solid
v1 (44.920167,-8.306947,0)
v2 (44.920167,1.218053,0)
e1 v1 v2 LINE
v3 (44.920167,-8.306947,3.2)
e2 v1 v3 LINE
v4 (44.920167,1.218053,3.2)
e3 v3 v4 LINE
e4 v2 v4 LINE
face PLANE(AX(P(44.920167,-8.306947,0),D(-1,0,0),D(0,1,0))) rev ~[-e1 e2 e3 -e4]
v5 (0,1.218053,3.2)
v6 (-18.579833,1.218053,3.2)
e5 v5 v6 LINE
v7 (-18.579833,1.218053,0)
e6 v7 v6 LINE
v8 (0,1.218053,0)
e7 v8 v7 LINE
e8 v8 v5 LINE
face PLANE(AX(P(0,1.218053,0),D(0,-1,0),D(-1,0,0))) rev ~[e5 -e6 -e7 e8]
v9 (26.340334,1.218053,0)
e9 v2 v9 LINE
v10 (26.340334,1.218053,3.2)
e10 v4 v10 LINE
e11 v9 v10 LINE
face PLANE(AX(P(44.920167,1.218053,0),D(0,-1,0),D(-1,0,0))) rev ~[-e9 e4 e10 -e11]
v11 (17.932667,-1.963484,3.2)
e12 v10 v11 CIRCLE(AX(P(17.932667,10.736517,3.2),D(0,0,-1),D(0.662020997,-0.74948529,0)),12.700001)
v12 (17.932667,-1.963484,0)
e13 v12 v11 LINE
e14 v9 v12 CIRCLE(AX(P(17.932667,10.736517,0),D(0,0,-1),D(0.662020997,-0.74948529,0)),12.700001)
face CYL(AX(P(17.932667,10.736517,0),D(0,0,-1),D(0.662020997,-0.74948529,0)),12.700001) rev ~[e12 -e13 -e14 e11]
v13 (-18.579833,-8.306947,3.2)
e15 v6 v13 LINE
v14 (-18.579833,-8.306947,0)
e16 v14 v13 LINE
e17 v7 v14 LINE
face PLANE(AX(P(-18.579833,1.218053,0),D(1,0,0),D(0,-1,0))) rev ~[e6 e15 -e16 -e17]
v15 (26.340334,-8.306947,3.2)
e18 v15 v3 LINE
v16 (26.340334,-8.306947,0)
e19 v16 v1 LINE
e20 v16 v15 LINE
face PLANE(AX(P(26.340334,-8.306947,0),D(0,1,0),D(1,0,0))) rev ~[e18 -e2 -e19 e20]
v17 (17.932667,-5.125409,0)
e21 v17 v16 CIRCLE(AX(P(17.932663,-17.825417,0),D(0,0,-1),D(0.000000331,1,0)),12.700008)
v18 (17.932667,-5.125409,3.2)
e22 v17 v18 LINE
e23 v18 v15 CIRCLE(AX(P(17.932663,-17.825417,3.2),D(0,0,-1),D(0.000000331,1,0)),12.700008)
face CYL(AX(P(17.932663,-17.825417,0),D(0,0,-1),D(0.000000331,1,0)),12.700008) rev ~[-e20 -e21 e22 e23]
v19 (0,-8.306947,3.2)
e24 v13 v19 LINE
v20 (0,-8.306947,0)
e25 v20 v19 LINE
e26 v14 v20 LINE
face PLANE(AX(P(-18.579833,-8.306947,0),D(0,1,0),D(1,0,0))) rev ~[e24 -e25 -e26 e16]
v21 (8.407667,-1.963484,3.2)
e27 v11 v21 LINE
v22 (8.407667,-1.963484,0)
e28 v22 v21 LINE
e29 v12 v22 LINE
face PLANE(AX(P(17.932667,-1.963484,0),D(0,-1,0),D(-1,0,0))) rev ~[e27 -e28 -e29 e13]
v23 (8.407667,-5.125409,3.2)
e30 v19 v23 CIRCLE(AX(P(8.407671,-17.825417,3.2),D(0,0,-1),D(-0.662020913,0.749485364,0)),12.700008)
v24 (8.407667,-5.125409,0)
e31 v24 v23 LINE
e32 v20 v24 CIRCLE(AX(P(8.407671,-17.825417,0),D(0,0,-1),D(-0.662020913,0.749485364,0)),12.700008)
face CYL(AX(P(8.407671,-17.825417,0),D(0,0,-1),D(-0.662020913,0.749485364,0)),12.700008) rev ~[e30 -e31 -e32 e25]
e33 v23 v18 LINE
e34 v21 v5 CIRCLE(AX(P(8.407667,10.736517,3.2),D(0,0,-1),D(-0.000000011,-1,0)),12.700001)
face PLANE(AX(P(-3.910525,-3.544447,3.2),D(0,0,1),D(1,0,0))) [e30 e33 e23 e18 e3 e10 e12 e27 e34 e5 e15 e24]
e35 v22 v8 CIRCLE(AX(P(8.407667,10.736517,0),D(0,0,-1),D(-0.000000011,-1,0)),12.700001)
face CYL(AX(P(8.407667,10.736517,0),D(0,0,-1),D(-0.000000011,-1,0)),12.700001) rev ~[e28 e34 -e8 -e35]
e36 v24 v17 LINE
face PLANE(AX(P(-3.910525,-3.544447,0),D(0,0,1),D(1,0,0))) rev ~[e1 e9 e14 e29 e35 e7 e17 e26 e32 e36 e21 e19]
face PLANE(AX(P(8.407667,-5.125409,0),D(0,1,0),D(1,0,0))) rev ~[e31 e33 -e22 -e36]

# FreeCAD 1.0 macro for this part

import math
import FreeCAD as App
import Part
import Sketcher

V = App.Vector
Q = App.Units.Quantity

doc = App.newDocument("Part")
body = doc.addObject("PartDesign::Body", "Body")

sketch1 = body.newObject("Sketcher::SketchObject", "Sketch")
sketch1.AttachmentSupport = (doc.getObject("XY_Plane"), [""])
sketch1.MapMode = "FlatFace"
sketch1.addGeometry(Part.LineSegment(V(0, 1, 0), V(-19, 1, 0)), False)
sketch1.addGeometry(Part.LineSegment(V(-19, 1, 0), V(-19, -8, 0)), False)
sketch1.addGeometry(Part.LineSegment(V(-19, -8, 0), V(0, -8, 0)), False)
sketch1.addGeometry(Part.ArcOfCircle(Part.Circle(V(8, -18, 0), V(0, 0, 1), 13), math.radians(90), math.radians(131)), False)
sketch1.addGeometry(Part.LineSegment(V(8, -5, 0), V(18, -5, 0)), False)
sketch1.addGeometry(Part.ArcOfCircle(Part.Circle(V(18, -18, 0), V(0, 0, 1), 13), math.radians(49), math.radians(90)), False)
sketch1.addGeometry(Part.LineSegment(V(26, -8, 0), V(45, -8, 0)), False)
sketch1.addGeometry(Part.LineSegment(V(45, -8, 0), V(45, 1, 0)), False)
sketch1.addGeometry(Part.LineSegment(V(45, 1, 0), V(26, 1, 0)), False)
sketch1.addGeometry(Part.ArcOfCircle(Part.Circle(V(18, 11, 0), V(0, 0, 1), 13), math.radians(-90), math.radians(-49)), False)
sketch1.addGeometry(Part.LineSegment(V(18, -2, 0), V(8, -2, 0)), False)
sketch1.addGeometry(Part.ArcOfCircle(Part.Circle(V(8, 11, 0), V(0, 0, 1), 13), math.radians(-131), math.radians(-90)), False)
sketch1.addConstraint(Sketcher.Constraint("Coincident", 0, 2, 1, 1))
sketch1.addConstraint(Sketcher.Constraint("Coincident", 1, 2, 2, 1))
sketch1.addConstraint(Sketcher.Constraint("Coincident", 2, 2, 3, 2))
sketch1.addConstraint(Sketcher.Constraint("Tangent", 3, 1, 4, 1))
sketch1.addConstraint(Sketcher.Constraint("Tangent", 4, 2, 5, 2))
sketch1.addConstraint(Sketcher.Constraint("Coincident", 5, 1, 6, 1))
sketch1.addConstraint(Sketcher.Constraint("Coincident", 6, 2, 7, 1))
sketch1.addConstraint(Sketcher.Constraint("Coincident", 7, 2, 8, 1))
sketch1.addConstraint(Sketcher.Constraint("Coincident", 8, 2, 9, 2))
sketch1.addConstraint(Sketcher.Constraint("Tangent", 9, 1, 10, 1))
sketch1.addConstraint(Sketcher.Constraint("Tangent", 10, 2, 11, 2))
sketch1.addConstraint(Sketcher.Constraint("Coincident", 11, 1, 0, 1))
sketch1.addConstraint(Sketcher.Constraint("Horizontal", 0))
sketch1.addConstraint(Sketcher.Constraint("Vertical", 1))
sketch1.addConstraint(Sketcher.Constraint("Horizontal", 2))
sketch1.addConstraint(Sketcher.Constraint("Horizontal", 4))
sketch1.addConstraint(Sketcher.Constraint("Horizontal", 6))
sketch1.addConstraint(Sketcher.Constraint("Vertical", 7))
sketch1.addConstraint(Sketcher.Constraint("Horizontal", 8))
sketch1.addConstraint(Sketcher.Constraint("Horizontal", 10))
sketch1.addConstraint(Sketcher.Constraint("Equal", 3, 5))
sketch1.addConstraint(Sketcher.Constraint("Equal", 9, 11))
sketch1.addConstraint(Sketcher.Constraint("PointOnObject", 2, 2, -2))
sketch1.addConstraint(Sketcher.Constraint("PointOnObject", 11, 1, -2))
sketch1.addConstraint(Sketcher.Constraint("Horizontal", 2, 2, 5, 1))
sketch1.addConstraint(Sketcher.Constraint("Horizontal", 0, 2, 7, 2))
sketch1.addConstraint(Sketcher.Constraint("Vertical", 11, 3, 3, 1))
sketch1.addConstraint(Sketcher.Constraint("Vertical", 9, 3, 4, 2))
sketch1.addConstraint(Sketcher.Constraint("Equal", 2, 6))
sketch1.addConstraint(Sketcher.Constraint("Equal", 10, 1))
sketch1.addConstraint(Sketcher.Constraint("Radius", 9, Q("0.5 in")))
sketch1.addConstraint(Sketcher.Constraint("DistanceX", 4, 1, 4, 2, Q("0.375 in")))
sketch1.addConstraint(Sketcher.Constraint("Radius", 3, 12.700008))
sketch1.addConstraint(Sketcher.Constraint("DistanceX", 0, 2, 11, 3, Q("1.0625 in")))
sketch1.addConstraint(Sketcher.Constraint("DistanceX", 0, 2, 0, 1, 18.579833))
sketch1.addConstraint(Sketcher.Constraint("DistanceY", 3, 1, -1, 1, 5.125409))
pad1 = body.newObject("PartDesign::Pad", "Pad")
pad1.Profile = sketch1
pad1.Length = 3.2

doc.recompute()
